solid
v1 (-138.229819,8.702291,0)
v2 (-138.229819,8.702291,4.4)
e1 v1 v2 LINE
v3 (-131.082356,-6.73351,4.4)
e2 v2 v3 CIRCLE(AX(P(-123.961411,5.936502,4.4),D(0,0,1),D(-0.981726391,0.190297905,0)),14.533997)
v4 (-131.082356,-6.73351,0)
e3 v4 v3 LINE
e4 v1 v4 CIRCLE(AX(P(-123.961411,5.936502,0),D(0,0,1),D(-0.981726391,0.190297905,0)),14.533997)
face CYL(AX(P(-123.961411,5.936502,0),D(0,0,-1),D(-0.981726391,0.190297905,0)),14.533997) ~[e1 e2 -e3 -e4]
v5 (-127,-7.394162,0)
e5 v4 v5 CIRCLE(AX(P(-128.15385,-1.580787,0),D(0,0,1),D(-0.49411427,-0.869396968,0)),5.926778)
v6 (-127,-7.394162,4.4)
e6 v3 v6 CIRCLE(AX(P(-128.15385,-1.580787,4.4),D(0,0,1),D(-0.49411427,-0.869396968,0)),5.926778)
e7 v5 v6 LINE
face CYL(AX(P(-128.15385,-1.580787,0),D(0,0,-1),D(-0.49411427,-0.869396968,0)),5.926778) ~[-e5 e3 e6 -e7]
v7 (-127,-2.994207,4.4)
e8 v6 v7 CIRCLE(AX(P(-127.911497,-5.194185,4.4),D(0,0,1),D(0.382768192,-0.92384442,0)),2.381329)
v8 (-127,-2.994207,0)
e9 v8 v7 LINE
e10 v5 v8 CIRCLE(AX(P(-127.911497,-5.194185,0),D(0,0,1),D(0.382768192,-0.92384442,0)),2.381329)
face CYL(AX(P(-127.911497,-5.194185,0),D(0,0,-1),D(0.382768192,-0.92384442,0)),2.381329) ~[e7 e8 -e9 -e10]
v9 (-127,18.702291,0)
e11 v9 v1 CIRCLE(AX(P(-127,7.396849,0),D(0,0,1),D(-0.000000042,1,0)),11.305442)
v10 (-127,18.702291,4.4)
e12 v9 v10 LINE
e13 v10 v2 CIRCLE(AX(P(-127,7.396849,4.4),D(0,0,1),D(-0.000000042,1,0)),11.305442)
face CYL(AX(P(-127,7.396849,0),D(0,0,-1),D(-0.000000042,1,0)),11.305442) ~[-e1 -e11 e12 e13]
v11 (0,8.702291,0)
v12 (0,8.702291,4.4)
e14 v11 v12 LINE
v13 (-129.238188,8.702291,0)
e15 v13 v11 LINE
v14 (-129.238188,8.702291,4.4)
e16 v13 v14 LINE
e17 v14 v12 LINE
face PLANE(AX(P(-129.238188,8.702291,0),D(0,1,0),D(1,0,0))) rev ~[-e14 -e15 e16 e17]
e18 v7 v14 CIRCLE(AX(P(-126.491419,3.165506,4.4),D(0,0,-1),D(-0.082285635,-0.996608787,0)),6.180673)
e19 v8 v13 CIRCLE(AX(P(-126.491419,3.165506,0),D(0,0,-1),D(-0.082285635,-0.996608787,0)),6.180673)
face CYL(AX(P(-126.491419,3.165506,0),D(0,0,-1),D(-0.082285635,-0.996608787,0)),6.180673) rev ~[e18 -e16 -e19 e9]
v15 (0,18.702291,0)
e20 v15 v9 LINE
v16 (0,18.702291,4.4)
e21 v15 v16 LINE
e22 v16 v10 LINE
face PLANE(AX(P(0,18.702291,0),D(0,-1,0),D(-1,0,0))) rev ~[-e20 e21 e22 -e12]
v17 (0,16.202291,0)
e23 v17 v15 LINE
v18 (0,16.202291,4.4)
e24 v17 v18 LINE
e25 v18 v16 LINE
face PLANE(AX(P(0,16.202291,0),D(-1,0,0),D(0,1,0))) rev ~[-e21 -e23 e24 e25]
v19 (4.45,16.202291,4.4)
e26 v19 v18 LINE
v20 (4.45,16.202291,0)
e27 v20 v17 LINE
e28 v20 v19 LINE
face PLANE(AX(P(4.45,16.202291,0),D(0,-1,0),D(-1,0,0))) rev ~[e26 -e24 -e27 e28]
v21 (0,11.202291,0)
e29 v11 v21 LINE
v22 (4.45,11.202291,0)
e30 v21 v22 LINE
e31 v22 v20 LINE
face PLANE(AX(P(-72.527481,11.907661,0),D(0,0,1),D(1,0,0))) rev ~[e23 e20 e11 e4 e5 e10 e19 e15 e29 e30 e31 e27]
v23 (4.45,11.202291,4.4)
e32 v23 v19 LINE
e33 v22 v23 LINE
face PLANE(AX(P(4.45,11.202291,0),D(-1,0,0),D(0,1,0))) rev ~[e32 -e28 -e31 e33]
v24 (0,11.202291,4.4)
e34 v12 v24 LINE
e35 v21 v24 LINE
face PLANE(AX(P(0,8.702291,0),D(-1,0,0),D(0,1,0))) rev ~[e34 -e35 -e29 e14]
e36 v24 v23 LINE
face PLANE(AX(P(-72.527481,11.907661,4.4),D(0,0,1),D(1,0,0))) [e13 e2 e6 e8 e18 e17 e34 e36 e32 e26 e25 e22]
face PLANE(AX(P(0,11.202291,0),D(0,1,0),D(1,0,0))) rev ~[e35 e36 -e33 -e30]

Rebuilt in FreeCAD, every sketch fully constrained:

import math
import FreeCAD as App
import Part
import Sketcher
from FreeCAD import Vector
Q = App.Units.Quantity

doc = App.newDocument("Part")
body = doc.addObject("PartDesign::Body", "Body")

sketch1 = body.newObject("Sketcher::SketchObject", "Sketch")
sketch1.AttachmentSupport = (doc.getObject("XY_Plane"), [""])
sketch1.MapMode = "FlatFace"
sketch1.addGeometry([
    Part.LineSegment(Vector(0, 16.2, 0), Vector(0, 18.7, 0)),
    Part.LineSegment(Vector(0, 18.7, 0), Vector(-127, 18.7, 0)),
    Part.ArcOfCircle(Part.Circle(Vector(-127, 7.4, 0), Vector(0, 0, 1), 11.3), math.radians(90), math.radians(173)),
    Part.ArcOfCircle(Part.Circle(Vector(-124, 5.9, 0), Vector(0, 0, 1), 14.5), math.radians(169), math.radians(241)),
    Part.ArcOfCircle(Part.Circle(Vector(-128.2, -1.6, 0), Vector(0, 0, 1), 5.9), math.radians(-120), math.radians(-79)),
    Part.ArcOfCircle(Part.Circle(Vector(-127.9, -5.2, 0), Vector(0, 0, 1), 2.4), math.radians(-67), math.radians(67)),
    Part.ArcOfCircle(Part.Circle(Vector(-126.5, 3.2, 0), Vector(0, 0, 1), 6.2), math.radians(116), math.radians(265)),
    Part.LineSegment(Vector(-129.2, 8.7, 0), Vector(0, 8.7, 0)),
    Part.LineSegment(Vector(0, 8.7, 0), Vector(0, 11.2, 0)),
    Part.LineSegment(Vector(0, 11.2, 0), Vector(4.5, 11.2, 0)),
    Part.LineSegment(Vector(4.5, 11.2, 0), Vector(4.5, 16.2, 0)),
    Part.LineSegment(Vector(4.5, 16.2, 0), Vector(0, 16.2, 0)),
], False)
sketch1.addConstraint([
    Sketcher.Constraint("Coincident", 0, 2, 1, 1),
    Sketcher.Constraint("Tangent", 1, 2, 2, 1),
    Sketcher.Constraint("Coincident", 2, 2, 3, 1),
    Sketcher.Constraint("Coincident", 3, 2, 4, 1),
    Sketcher.Constraint("Coincident", 4, 2, 5, 1),
    Sketcher.Constraint("Coincident", 5, 2, 6, 2),
    Sketcher.Constraint("Coincident", 6, 1, 7, 1),
    Sketcher.Constraint("Coincident", 7, 2, 8, 1),
    Sketcher.Constraint("Coincident", 8, 2, 9, 1),
    Sketcher.Constraint("Coincident", 9, 2, 10, 1),
    Sketcher.Constraint("Coincident", 10, 2, 11, 1),
    Sketcher.Constraint("Coincident", 11, 2, 0, 1),
    Sketcher.Constraint("Vertical", 0),
    Sketcher.Constraint("Horizontal", 1),
    Sketcher.Constraint("Horizontal", 7),
    Sketcher.Constraint("Vertical", 8),
    Sketcher.Constraint("Horizontal", 9),
    Sketcher.Constraint("Vertical", 10),
    Sketcher.Constraint("Horizontal", 11),
    Sketcher.Constraint("PointOnObject", 0, 2, -2),
    Sketcher.Constraint("PointOnObject", 7, 2, -2),
    Sketcher.Constraint("Horizontal", 2, 2, 6, 1),
    Sketcher.Constraint("Vertical", 1, 2, 4, 2),
    Sketcher.Constraint("Vertical", 4, 2, 5, 2),
    Sketcher.Constraint("Equal", 0, 8),
    Sketcher.Constraint("DistanceX", 1, 2, 1, 1, Q("127 mm")),
    Sketcher.Constraint("DistanceY", 10, 1, 10, 2, Q("5 mm")),
    Sketcher.Constraint("DistanceY", 0, 1, 0, 2, Q("2.5 mm")),
    Sketcher.Constraint("DistanceX", 9, 1, 9, 2, Q("4.45 mm")),
    Sketcher.Constraint("Radius", 4, Q("5.926778 mm")),
    Sketcher.Constraint("Radius", 5, Q("2.381329 mm")),
    Sketcher.Constraint("Radius", 2, Q("11.305442 mm")),
    Sketcher.Constraint("Radius", 3, Q("14.533997 mm")),
    Sketcher.Constraint("Radius", 6, Q("6.180673 mm")),
    Sketcher.Constraint("DistanceX", 7, 1, 7, 2, Q("129.238188 mm")),
    Sketcher.Constraint("DistanceY", -1, 1, 3, 3, Q("5.936502 mm")),
    Sketcher.Constraint("DistanceX", 2, 2, 6, 3, Q("11.7384 mm")),
    Sketcher.Constraint("DistanceY", -1, 1, 2, 3, Q("7.396849 mm")),
    Sketcher.Constraint("DistanceX", 4, 3, -1, 1, Q("128.15385 mm")),
    Sketcher.Constraint("DistanceY", 3, 2, -1, 1, Q("6.73351 mm")),
])
pad1 = body.newObject("PartDesign::Pad", "Pad")
pad1.Profile = sketch1
pad1.Length = 4.4

doc.recompute()
